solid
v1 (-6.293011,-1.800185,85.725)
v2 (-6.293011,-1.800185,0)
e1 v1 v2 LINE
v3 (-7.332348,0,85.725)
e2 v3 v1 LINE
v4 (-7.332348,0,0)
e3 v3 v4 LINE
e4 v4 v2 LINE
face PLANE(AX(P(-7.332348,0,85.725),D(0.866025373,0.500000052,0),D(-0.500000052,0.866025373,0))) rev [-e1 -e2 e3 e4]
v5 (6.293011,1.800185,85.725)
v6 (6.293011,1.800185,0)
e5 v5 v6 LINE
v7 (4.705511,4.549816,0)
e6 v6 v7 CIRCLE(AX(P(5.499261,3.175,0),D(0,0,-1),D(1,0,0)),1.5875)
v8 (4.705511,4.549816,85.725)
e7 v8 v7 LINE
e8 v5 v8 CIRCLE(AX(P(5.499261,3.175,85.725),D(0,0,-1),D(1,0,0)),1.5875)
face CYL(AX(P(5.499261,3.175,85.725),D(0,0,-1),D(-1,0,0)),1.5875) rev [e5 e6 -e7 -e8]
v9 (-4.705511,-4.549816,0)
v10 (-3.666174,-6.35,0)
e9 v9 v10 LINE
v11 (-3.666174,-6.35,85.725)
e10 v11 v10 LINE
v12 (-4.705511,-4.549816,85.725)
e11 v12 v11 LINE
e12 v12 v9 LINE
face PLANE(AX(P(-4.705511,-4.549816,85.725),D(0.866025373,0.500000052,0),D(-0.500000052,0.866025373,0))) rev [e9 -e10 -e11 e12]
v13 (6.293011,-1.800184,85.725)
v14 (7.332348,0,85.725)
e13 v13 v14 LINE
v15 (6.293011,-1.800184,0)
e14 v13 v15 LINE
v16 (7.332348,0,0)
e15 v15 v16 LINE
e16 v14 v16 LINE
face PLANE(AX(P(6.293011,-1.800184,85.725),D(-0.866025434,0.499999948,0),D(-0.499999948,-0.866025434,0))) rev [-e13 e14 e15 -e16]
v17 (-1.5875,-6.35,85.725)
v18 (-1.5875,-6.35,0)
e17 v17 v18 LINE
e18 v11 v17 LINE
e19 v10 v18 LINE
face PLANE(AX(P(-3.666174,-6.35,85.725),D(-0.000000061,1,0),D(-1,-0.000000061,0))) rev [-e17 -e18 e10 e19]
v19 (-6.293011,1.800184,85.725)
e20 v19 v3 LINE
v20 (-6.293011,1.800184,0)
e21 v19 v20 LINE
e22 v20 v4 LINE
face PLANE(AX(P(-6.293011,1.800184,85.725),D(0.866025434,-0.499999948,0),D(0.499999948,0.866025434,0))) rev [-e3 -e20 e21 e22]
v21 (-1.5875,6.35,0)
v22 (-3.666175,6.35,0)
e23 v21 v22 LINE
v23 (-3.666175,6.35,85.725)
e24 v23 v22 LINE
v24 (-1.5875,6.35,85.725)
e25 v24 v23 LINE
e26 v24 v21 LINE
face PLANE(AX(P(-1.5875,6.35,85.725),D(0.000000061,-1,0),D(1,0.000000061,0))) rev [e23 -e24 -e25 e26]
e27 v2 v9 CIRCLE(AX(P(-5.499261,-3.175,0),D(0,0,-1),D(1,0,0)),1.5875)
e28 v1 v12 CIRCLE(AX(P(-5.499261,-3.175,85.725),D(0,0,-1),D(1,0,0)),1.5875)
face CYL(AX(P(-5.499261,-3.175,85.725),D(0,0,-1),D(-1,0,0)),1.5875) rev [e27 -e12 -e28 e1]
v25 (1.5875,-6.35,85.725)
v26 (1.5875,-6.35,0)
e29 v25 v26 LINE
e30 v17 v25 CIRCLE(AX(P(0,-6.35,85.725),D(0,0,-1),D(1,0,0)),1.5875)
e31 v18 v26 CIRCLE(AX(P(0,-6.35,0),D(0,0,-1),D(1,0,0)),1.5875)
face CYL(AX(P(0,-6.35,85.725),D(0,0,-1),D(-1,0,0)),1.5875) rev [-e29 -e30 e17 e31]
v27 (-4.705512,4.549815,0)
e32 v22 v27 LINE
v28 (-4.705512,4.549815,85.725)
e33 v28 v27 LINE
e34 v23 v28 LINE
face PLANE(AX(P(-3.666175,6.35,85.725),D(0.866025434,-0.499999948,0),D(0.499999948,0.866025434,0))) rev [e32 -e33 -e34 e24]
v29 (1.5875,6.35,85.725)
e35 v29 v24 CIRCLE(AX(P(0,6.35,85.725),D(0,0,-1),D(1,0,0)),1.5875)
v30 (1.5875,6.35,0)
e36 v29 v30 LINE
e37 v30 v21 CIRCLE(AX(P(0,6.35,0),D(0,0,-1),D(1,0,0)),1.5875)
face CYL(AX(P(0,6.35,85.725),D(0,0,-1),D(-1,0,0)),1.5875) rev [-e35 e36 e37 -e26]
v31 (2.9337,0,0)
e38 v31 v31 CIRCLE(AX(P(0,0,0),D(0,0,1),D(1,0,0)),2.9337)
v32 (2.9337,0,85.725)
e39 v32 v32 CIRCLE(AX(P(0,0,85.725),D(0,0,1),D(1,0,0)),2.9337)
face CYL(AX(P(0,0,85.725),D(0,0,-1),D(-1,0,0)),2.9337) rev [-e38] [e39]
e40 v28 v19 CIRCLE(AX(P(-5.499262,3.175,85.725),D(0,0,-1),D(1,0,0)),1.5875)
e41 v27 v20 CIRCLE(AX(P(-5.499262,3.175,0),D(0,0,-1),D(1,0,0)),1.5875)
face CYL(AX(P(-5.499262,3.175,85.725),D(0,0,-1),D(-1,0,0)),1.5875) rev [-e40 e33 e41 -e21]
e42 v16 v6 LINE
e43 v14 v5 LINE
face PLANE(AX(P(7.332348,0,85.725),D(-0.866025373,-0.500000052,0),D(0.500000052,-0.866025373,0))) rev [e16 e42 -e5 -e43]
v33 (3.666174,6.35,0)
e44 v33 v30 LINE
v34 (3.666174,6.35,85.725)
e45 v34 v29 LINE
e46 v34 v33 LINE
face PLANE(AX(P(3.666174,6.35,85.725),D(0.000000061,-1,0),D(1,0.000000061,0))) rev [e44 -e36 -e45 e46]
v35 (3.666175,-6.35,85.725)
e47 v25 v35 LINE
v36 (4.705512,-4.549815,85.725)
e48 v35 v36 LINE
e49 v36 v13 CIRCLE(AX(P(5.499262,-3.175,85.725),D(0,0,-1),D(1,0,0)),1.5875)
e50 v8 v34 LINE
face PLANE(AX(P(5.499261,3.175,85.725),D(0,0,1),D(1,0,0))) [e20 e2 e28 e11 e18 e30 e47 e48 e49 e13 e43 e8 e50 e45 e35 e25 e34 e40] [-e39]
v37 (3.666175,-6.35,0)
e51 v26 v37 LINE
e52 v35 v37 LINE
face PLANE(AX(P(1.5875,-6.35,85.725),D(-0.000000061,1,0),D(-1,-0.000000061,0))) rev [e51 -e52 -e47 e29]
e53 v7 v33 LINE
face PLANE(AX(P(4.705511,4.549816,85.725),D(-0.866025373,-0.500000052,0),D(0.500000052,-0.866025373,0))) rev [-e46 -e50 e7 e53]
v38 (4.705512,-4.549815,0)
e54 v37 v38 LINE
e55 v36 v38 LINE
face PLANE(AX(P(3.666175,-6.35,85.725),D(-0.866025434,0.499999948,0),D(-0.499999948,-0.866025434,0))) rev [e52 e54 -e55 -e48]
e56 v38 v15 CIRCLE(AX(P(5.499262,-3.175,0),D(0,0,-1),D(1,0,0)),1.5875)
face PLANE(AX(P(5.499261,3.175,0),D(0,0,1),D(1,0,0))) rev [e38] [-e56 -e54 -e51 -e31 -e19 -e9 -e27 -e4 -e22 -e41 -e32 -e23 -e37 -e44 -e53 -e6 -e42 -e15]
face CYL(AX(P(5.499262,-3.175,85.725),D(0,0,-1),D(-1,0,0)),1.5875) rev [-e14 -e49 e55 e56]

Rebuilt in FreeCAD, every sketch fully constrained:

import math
import FreeCAD as App
import Part
import Sketcher

V = App.Vector
Q = App.Units.Quantity

doc = App.newDocument("Part")
params = doc.addObject("Spreadsheet::Sheet", "Params")
for row, (alias, value) in enumerate([
    ("sketch1_diameter", "0.231 in"),
    ("sketch1_radius", "0.0625 in"),
    ("pad1_length", "3.375 in"),
], start=1):
    params.set(f"A{row}", alias)
    params.set(f"B{row}", "=" + value)
    params.setAlias(f"B{row}", alias)

body = doc.addObject("PartDesign::Body", "Body")

# Sketch on XY plane
sketch1 = doc.addObject("Sketcher::SketchObject", "Sketch")
body.addObject(sketch1)
sketch1.AttachmentSupport = (doc.XY_Plane, [""])
sketch1.MapMode = "FlatFace"
sketch1.addGeometry([
    Part.LineSegment(V(-1.5875, 6.35, 0), V(-3.666175, 6.35, 0)),  # 0
    Part.LineSegment(V(-3.666175, 6.35, 0), V(-4.705512, 4.549815, 0)),  # 1
    Part.ArcOfCircle(Part.Circle(V(-5.499262, 3.175, 0), V(0, 0, 1), 1.5875), math.radians(-119.999997), math.radians(60.000004)),  # 2
    Part.LineSegment(V(-6.293011, 1.800184, 0), V(-7.332348, 0, 0)),  # 3
    Part.LineSegment(V(-7.332348, 0, 0), V(-6.293011, -1.800185, 0)),  # 4
    Part.ArcOfCircle(Part.Circle(V(-5.499261, -3.175, 0), V(0, 0, 1), 1.5875), math.radians(-59.999997), math.radians(120.000004)),  # 5
    Part.LineSegment(V(-4.705511, -4.549816, 0), V(-3.666174, -6.35, 0)),  # 6
    Part.LineSegment(V(-3.666174, -6.35, 0), V(-1.5875, -6.35, 0)),  # 7
    Part.ArcOfCircle(Part.Circle(V(0, -6.35, 0), V(0, 0, 1), 1.5875), math.radians(0.000003), math.radians(180.000003)),  # 8
    Part.LineSegment(V(1.5875, -6.35, 0), V(3.666175, -6.35, 0)),  # 9
    Part.LineSegment(V(3.666175, -6.35, 0), V(4.705512, -4.549815, 0)),  # 10
    Part.ArcOfCircle(Part.Circle(V(5.499262, -3.175, 0), V(0, 0, 1), 1.5875), math.radians(60.000003), math.radians(240.000004)),  # 11
    Part.LineSegment(V(6.293011, -1.800184, 0), V(7.332348, 0, 0)),  # 12
    Part.LineSegment(V(7.332348, 0, 0), V(6.293011, 1.800185, 0)),  # 13
    Part.ArcOfCircle(Part.Circle(V(5.499261, 3.175, 0), V(0, 0, 1), 1.5875), math.radians(120.000003), math.radians(300.000004)),  # 14
    Part.LineSegment(V(4.705511, 4.549816, 0), V(3.666174, 6.35, 0)),  # 15
    Part.LineSegment(V(3.666174, 6.35, 0), V(1.5875, 6.35, 0)),  # 16
    Part.ArcOfCircle(Part.Circle(V(0, 6.35, 0), V(0, 0, 1), 1.5875), math.radians(-179.999997), math.radians(0.000003)),  # 17
    Part.Circle(V(0, 0, 0), V(0, 0, 1), 2.9337),  # 18
], False)
sketch1.addConstraint([
    Sketcher.Constraint("Coincident", 0, 2, 1, 1),
    Sketcher.Constraint("Coincident", 1, 2, 2, 2),
    Sketcher.Constraint("Coincident", 2, 1, 3, 1),
    Sketcher.Constraint("Coincident", 3, 2, 4, 1),
    Sketcher.Constraint("Coincident", 4, 2, 5, 2),
    Sketcher.Constraint("Coincident", 5, 1, 6, 1),
    Sketcher.Constraint("Coincident", 6, 2, 7, 1),
    Sketcher.Constraint("Coincident", 7, 2, 8, 2),
    Sketcher.Constraint("Coincident", 8, 1, 9, 1),
    Sketcher.Constraint("Coincident", 9, 2, 10, 1),
    Sketcher.Constraint("Coincident", 10, 2, 11, 2),
    Sketcher.Constraint("Coincident", 11, 1, 12, 1),
    Sketcher.Constraint("Coincident", 12, 2, 13, 1),
    Sketcher.Constraint("Coincident", 13, 2, 14, 2),
    Sketcher.Constraint("Coincident", 14, 1, 15, 1),
    Sketcher.Constraint("Coincident", 15, 2, 16, 1),
    Sketcher.Constraint("Coincident", 16, 2, 17, 2),
    Sketcher.Constraint("Coincident", 17, 1, 0, 1),
    Sketcher.Constraint("Horizontal", 0),
    Sketcher.Constraint("Horizontal", 7),
    Sketcher.Constraint("Horizontal", 9),
    Sketcher.Constraint("Horizontal", 16),
    Sketcher.Constraint("Coincident", 18, 3, -1, 1),
    Sketcher.Constraint("Equal", 2, 5),
    Sketcher.Constraint("Equal", 5, 8),
    Sketcher.Constraint("Equal", 8, 11),
    Sketcher.Constraint("Equal", 11, 14),
    Sketcher.Constraint("Equal", 14, 17),
    Sketcher.Constraint("Symmetric", 2, 3, 11, 3, -1, 1),
    Sketcher.Constraint("Symmetric", 5, 3, 14, 3, -1, 1),
    Sketcher.Constraint("Symmetric", 8, 3, 17, 3, -1, 1),
    Sketcher.Constraint("Symmetric", 0, 2, 9, 2, -1, 1),
    Sketcher.Constraint("Symmetric", 3, 2, 12, 2, -1, 1),
    Sketcher.Constraint("Symmetric", 6, 2, 15, 2, -1, 1),
    Sketcher.Constraint("Symmetric", 5, 3, 11, 3, -2),
    Sketcher.Constraint("Symmetric", 7, 2, 8, 1, -2),
    Sketcher.Constraint("PointOnObject", 3, 2, -1),
    Sketcher.Constraint("Parallel", 1, 3),
    Sketcher.Constraint("Parallel", 4, 6),
    Sketcher.Constraint("Parallel", 3, 10),
    Sketcher.Constraint("Parallel", 10, 12),
    Sketcher.Constraint("Parallel", 6, 13),
    Sketcher.Constraint("Parallel", 13, 15),
    Sketcher.Constraint("Horizontal", 17, 3, 0, 2),
    Sketcher.Constraint("Horizontal", 5, 1, 10, 2),
    Sketcher.Constraint("Horizontal", 4, 2, 11, 1),
    Sketcher.Constraint("Equal", 1, 3),
    Sketcher.Constraint("Diameter", 18, Q("0.231 in")),
    Sketcher.Constraint("Angle", 1, Q("-119.999997 deg")),
    Sketcher.Constraint("Radius", 2, Q("0.0625 in")),
    Sketcher.Constraint("DistanceY", 8, 3, 17, 3, Q("0.5 in")),
    Sketcher.Constraint("DistanceY", 5, 3, 2, 3, Q("0.25 in")),
    Sketcher.Constraint("DistanceX", 2, 3, 1, 2, Q("0.03125 in")),
    Sketcher.Constraint("DistanceX", 0, 2, 0, 1, 2.078674),
])
sketch1.setExpression("Constraints[47]", "Params.sketch1_diameter")
sketch1.setExpression("Constraints[49]", "Params.sketch1_radius")
pad1 = doc.addObject("PartDesign::Pad", "Pad")
body.addObject(pad1)
pad1.Profile = sketch1
pad1.setExpression("Length", "Params.pad1_length")

doc.recompute()
